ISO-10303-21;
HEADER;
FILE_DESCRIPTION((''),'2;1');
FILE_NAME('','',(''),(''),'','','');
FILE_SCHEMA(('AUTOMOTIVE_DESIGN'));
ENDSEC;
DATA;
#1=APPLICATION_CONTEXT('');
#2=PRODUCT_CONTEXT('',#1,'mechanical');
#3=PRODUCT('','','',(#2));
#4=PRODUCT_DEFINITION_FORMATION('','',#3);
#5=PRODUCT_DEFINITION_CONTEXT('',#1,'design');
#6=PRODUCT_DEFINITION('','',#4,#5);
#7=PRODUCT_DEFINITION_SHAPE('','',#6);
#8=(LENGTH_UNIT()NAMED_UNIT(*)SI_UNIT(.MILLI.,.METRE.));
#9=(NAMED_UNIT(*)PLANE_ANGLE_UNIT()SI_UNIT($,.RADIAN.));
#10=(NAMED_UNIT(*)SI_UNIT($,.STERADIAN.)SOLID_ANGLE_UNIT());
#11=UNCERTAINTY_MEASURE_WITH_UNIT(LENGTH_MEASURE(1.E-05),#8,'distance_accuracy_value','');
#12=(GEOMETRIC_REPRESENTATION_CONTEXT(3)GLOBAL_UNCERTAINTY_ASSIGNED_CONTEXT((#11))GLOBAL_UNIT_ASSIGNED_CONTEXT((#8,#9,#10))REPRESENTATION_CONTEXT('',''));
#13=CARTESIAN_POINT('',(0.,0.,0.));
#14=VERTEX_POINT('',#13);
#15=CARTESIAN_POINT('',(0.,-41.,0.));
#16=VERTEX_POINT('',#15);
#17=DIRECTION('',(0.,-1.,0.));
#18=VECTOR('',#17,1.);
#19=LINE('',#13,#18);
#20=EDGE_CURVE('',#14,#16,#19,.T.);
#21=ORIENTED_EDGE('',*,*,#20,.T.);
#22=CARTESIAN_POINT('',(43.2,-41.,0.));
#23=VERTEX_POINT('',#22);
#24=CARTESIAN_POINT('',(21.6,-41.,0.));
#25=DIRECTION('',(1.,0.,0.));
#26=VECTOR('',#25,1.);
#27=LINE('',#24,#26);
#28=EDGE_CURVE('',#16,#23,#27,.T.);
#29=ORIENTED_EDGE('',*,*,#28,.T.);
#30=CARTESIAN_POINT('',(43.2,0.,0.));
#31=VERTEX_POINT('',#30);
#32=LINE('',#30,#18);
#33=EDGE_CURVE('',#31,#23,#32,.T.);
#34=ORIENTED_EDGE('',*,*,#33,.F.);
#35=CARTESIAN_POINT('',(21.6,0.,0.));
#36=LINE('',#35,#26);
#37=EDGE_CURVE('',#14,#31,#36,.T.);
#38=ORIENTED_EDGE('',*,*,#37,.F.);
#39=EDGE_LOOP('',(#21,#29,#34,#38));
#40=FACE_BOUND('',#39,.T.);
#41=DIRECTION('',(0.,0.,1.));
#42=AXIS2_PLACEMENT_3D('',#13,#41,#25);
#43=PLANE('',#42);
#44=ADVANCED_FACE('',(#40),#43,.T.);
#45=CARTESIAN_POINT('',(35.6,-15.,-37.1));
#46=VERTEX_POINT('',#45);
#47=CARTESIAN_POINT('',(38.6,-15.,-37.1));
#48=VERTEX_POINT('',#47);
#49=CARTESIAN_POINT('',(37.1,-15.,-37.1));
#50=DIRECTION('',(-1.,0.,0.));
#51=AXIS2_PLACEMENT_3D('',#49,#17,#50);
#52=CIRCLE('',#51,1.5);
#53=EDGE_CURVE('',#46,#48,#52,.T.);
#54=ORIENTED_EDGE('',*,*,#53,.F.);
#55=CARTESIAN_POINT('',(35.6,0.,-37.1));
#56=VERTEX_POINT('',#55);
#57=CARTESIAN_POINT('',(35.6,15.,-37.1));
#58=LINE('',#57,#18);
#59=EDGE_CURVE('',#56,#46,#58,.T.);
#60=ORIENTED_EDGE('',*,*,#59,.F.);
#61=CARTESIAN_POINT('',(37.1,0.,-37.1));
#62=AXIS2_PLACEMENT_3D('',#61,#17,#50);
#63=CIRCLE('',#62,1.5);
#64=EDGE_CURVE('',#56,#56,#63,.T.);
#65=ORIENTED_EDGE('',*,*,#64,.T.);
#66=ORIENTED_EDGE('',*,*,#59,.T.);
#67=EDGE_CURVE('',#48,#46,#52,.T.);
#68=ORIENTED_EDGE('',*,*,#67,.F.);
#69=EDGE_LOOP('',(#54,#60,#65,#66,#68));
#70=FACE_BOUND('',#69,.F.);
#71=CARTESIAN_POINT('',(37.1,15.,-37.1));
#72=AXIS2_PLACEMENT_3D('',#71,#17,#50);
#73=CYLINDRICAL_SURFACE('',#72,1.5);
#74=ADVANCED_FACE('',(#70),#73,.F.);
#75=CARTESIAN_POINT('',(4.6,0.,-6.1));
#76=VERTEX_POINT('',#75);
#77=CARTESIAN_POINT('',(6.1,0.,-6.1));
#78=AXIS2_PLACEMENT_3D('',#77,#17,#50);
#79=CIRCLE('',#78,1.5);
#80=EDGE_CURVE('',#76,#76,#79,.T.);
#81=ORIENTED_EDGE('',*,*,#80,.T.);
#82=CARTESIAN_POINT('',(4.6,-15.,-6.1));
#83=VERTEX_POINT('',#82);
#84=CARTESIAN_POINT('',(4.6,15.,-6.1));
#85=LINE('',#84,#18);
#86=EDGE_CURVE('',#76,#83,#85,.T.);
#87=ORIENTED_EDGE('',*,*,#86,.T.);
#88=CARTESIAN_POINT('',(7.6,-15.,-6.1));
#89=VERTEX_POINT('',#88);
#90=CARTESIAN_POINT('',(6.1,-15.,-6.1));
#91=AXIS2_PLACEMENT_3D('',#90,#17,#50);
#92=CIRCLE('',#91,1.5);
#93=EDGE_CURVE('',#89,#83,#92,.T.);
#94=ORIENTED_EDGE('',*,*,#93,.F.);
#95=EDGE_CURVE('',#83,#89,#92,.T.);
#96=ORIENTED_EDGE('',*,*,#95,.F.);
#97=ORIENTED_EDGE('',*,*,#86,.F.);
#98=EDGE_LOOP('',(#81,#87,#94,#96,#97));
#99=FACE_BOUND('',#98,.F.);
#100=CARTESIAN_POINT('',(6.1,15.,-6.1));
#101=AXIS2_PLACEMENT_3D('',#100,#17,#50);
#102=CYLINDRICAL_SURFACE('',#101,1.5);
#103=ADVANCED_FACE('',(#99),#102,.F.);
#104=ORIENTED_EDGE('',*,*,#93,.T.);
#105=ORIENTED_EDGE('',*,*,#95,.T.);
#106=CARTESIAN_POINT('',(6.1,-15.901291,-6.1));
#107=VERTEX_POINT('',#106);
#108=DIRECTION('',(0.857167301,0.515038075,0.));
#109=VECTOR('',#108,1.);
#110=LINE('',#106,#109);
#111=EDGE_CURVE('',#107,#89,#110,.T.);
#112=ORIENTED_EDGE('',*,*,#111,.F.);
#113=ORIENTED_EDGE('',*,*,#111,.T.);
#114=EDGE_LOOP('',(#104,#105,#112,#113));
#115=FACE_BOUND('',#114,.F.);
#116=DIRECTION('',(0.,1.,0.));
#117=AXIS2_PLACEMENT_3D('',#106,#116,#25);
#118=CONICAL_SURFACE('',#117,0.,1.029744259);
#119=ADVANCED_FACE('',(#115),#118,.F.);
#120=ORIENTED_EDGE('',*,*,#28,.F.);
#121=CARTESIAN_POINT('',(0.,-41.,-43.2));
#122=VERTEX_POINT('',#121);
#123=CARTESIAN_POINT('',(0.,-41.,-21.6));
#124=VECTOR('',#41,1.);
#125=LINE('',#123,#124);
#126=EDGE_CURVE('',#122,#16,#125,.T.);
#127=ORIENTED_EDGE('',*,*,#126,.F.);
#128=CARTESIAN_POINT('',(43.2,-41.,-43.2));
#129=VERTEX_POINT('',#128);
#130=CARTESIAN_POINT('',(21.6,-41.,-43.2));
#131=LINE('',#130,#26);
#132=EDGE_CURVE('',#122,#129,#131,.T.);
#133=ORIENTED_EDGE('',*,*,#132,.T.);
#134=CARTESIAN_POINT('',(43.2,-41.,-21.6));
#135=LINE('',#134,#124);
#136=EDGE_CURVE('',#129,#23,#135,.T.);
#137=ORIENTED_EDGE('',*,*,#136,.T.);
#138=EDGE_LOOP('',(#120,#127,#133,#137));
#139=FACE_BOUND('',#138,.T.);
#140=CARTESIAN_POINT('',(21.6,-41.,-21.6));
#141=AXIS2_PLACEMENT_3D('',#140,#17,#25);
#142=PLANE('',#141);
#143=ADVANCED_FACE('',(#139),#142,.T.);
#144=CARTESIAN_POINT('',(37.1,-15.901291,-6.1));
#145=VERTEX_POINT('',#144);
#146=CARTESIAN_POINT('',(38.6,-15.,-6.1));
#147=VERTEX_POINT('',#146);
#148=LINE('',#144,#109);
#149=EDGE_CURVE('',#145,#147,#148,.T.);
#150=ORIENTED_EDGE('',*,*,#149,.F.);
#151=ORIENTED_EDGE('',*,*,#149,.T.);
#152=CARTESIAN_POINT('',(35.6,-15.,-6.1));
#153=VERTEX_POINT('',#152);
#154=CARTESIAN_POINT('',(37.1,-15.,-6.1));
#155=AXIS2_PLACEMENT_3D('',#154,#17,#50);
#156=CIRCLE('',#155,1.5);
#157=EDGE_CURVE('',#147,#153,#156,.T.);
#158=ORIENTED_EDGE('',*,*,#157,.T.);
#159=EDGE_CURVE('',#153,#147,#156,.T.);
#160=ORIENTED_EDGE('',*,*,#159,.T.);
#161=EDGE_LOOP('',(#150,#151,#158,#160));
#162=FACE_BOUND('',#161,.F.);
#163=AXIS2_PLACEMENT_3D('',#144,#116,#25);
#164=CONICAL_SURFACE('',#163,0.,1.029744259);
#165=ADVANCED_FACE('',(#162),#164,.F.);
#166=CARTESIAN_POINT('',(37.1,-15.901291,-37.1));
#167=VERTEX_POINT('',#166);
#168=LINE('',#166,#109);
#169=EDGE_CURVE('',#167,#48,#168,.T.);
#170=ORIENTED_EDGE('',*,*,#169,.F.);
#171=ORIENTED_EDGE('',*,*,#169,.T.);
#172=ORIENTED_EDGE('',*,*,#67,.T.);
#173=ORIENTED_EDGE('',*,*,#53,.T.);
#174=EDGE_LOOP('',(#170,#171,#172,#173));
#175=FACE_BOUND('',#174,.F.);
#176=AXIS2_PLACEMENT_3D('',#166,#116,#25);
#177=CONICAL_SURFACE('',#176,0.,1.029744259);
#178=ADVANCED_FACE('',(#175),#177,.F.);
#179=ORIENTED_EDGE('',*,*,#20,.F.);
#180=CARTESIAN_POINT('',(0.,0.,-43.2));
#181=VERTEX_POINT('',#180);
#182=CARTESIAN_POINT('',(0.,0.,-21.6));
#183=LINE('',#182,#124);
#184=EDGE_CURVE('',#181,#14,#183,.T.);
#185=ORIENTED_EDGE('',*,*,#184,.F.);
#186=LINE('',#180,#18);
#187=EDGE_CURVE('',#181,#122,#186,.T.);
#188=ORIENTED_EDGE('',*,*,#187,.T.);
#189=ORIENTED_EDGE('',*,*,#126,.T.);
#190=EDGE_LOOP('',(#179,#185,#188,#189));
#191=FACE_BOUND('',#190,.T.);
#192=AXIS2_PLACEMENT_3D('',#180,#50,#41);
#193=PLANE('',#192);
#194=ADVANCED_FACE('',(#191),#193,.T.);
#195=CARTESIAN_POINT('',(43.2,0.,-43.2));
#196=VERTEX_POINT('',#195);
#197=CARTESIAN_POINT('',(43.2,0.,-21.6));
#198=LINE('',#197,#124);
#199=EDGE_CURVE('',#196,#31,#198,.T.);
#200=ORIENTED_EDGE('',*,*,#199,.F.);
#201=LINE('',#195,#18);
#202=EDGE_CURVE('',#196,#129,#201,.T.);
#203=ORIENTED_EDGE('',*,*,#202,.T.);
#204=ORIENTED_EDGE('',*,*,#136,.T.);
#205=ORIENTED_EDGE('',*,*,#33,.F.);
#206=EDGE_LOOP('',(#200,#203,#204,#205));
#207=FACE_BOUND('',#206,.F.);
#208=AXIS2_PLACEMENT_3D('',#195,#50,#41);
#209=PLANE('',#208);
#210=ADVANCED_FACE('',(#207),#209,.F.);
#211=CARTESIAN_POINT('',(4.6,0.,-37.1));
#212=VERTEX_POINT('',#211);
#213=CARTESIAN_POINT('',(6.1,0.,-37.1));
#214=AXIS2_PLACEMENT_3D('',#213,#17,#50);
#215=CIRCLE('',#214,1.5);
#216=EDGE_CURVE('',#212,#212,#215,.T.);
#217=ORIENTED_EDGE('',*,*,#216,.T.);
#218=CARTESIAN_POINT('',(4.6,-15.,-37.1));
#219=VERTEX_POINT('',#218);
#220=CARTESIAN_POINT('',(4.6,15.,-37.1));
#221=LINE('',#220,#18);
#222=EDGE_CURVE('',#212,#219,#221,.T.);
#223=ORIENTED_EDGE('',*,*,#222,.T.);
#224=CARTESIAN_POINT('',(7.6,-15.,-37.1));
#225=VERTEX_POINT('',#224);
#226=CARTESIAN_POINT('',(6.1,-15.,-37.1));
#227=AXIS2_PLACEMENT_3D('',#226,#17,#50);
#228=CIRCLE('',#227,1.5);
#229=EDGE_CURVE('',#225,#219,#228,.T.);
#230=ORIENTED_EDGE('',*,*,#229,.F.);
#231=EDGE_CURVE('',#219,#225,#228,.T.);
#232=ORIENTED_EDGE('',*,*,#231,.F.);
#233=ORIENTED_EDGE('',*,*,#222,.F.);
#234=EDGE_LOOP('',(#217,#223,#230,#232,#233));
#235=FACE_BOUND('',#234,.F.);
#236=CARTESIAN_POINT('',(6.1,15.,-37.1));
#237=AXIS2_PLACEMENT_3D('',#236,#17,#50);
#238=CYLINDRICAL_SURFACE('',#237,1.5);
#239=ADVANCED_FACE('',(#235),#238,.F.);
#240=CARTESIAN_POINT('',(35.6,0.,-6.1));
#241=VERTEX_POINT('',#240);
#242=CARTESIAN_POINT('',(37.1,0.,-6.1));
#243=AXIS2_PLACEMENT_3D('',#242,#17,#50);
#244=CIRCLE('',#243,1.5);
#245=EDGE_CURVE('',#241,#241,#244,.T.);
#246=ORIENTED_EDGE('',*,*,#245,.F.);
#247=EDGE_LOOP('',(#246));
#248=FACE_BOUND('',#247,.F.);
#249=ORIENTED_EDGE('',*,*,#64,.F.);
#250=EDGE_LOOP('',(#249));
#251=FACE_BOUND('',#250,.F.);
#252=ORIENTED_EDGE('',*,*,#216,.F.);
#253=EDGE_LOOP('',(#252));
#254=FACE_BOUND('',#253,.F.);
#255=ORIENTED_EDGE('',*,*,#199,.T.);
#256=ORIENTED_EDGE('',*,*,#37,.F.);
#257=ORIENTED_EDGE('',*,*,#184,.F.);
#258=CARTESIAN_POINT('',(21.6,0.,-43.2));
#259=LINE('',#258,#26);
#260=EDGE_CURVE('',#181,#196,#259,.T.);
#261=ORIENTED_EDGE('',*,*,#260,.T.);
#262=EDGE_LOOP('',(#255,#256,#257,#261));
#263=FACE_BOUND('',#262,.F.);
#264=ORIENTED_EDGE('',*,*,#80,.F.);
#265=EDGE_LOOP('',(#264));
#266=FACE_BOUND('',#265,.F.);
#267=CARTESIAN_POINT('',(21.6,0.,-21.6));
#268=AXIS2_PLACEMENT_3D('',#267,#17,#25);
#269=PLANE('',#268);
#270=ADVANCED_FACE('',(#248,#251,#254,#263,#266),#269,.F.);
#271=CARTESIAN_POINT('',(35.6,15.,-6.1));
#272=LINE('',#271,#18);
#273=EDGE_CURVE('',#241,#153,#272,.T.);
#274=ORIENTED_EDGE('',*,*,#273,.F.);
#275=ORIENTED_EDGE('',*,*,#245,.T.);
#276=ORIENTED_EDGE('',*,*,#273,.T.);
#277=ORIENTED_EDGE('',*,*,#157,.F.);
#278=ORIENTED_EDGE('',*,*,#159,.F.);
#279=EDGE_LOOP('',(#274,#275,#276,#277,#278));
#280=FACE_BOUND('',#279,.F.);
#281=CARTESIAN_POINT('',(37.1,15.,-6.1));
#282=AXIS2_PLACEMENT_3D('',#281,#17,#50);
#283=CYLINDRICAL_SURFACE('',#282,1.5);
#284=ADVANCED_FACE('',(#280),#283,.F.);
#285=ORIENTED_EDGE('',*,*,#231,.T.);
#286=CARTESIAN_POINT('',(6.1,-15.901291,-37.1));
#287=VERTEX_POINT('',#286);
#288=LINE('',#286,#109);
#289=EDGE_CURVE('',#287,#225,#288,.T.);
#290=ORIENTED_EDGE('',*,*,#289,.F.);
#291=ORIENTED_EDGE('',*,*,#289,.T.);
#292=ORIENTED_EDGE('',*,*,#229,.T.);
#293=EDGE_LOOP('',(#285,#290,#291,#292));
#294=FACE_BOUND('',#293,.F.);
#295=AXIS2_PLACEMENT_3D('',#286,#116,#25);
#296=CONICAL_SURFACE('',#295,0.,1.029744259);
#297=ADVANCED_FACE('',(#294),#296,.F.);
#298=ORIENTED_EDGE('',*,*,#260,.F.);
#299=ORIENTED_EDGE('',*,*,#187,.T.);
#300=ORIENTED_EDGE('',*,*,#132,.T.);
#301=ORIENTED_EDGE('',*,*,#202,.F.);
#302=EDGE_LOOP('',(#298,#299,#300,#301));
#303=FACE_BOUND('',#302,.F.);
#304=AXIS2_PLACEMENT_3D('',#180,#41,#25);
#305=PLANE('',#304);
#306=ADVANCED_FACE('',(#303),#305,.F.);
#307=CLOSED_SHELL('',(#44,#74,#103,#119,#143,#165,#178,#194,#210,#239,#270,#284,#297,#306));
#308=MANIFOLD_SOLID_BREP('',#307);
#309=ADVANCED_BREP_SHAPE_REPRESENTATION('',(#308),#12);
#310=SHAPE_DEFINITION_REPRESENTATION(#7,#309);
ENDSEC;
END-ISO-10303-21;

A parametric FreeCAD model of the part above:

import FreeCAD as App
import Part
import Sketcher


def add_polygon(sketch, points):
    """Adds a closed chain of lines whose ends are joined by coincident constraints."""
    first, n = sketch.GeometryCount, len(points)
    for a, b in zip(points, points[1:] + points[:1]):
        sketch.addGeometry(Part.LineSegment(App.Vector(*a, 0), App.Vector(*b, 0)), False)
    for i in range(n):
        sketch.addConstraint(Sketcher.Constraint("Coincident", first + i, 2, first + (i + 1) % n, 1))

doc = App.newDocument("Part")
body = doc.addObject("PartDesign::Body", "Body")

# Sketch on XZ plane
sketch1 = doc.addObject("Sketcher::SketchObject", "Sketch")
body.addObject(sketch1)
sketch1.AttachmentSupport = (doc.XZ_Plane, [""])
sketch1.MapMode = "FlatFace"
add_polygon(sketch1, [(0, 0), (0, -43), (43, -43), (43, 0)])  # lines 0-3
sketch1.addConstraint([
    Sketcher.Constraint("Vertical", 0),
    Sketcher.Constraint("Horizontal", 1),
    Sketcher.Constraint("Vertical", 2),
    Sketcher.Constraint("Horizontal", 3),
    Sketcher.Constraint("Coincident", 3, 2, -1, 1),
    Sketcher.Constraint("Equal", 3, 0),
    Sketcher.Constraint("DistanceX", 1, 1, 1, 2, 43.2),
])
pad1 = doc.addObject("PartDesign::Pad", "Pad")
body.addObject(pad1)
pad1.Profile = sketch1
pad1.Length = 41

# Sketch on XZ plane
sketch2 = doc.addObject("Sketcher::SketchObject", "Sketch001")
body.addObject(sketch2)
sketch2.AttachmentSupport = (doc.XZ_Plane, [""])
sketch2.MapMode = "FlatFace"
sketch2.addGeometry([
    Part.Circle(App.Vector(37.1, -6.1, 0), App.Vector(0, 0, 1), 1.5),
    Part.Circle(App.Vector(6.1, -6.1, 0), App.Vector(0, 0, 1), 1.5),
    Part.Circle(App.Vector(6.1, -37.1, 0), App.Vector(0, 0, 1), 1.5),
    Part.Circle(App.Vector(37.1, -37.1, 0), App.Vector(0, 0, 1), 1.5),
], False)
sketch2.addConstraint([
    Sketcher.Constraint("Equal", 0, 1),
    Sketcher.Constraint("Equal", 1, 2),
    Sketcher.Constraint("Equal", 2, 3),
    Sketcher.Constraint("Horizontal", 0, 3, 1, 3),
    Sketcher.Constraint("Horizontal", 2, 3, 3, 3),
    Sketcher.Constraint("Vertical", 1, 3, 2, 3),
    Sketcher.Constraint("Vertical", 0, 3, 3, 3),
    Sketcher.Constraint("Diameter", 0, 3.0),
    Sketcher.Constraint("DistanceX", 1, 3, 0, 3, 31.0),
    Sketcher.Constraint("DistanceY", 2, 3, 1, 3, 31.0),
    Sketcher.Constraint("DistanceX", -1, 1, 0, 3, 37.1),
    Sketcher.Constraint("DistanceY", 0, 3, -1, 1, 6.1),
])
doc.recompute()
hole = doc.addObject("PartDesign::Hole", "Hole")
body.addObject(hole)
hole.Profile = sketch2
hole.ThreadType = "None"
hole.Diameter = 3
hole.DepthType = "Dimension"
hole.Depth = 15
hole.DrillPoint = "Angled"
hole.DrillPointAngle = 118
hole.Reversed = True

doc.recompute()
